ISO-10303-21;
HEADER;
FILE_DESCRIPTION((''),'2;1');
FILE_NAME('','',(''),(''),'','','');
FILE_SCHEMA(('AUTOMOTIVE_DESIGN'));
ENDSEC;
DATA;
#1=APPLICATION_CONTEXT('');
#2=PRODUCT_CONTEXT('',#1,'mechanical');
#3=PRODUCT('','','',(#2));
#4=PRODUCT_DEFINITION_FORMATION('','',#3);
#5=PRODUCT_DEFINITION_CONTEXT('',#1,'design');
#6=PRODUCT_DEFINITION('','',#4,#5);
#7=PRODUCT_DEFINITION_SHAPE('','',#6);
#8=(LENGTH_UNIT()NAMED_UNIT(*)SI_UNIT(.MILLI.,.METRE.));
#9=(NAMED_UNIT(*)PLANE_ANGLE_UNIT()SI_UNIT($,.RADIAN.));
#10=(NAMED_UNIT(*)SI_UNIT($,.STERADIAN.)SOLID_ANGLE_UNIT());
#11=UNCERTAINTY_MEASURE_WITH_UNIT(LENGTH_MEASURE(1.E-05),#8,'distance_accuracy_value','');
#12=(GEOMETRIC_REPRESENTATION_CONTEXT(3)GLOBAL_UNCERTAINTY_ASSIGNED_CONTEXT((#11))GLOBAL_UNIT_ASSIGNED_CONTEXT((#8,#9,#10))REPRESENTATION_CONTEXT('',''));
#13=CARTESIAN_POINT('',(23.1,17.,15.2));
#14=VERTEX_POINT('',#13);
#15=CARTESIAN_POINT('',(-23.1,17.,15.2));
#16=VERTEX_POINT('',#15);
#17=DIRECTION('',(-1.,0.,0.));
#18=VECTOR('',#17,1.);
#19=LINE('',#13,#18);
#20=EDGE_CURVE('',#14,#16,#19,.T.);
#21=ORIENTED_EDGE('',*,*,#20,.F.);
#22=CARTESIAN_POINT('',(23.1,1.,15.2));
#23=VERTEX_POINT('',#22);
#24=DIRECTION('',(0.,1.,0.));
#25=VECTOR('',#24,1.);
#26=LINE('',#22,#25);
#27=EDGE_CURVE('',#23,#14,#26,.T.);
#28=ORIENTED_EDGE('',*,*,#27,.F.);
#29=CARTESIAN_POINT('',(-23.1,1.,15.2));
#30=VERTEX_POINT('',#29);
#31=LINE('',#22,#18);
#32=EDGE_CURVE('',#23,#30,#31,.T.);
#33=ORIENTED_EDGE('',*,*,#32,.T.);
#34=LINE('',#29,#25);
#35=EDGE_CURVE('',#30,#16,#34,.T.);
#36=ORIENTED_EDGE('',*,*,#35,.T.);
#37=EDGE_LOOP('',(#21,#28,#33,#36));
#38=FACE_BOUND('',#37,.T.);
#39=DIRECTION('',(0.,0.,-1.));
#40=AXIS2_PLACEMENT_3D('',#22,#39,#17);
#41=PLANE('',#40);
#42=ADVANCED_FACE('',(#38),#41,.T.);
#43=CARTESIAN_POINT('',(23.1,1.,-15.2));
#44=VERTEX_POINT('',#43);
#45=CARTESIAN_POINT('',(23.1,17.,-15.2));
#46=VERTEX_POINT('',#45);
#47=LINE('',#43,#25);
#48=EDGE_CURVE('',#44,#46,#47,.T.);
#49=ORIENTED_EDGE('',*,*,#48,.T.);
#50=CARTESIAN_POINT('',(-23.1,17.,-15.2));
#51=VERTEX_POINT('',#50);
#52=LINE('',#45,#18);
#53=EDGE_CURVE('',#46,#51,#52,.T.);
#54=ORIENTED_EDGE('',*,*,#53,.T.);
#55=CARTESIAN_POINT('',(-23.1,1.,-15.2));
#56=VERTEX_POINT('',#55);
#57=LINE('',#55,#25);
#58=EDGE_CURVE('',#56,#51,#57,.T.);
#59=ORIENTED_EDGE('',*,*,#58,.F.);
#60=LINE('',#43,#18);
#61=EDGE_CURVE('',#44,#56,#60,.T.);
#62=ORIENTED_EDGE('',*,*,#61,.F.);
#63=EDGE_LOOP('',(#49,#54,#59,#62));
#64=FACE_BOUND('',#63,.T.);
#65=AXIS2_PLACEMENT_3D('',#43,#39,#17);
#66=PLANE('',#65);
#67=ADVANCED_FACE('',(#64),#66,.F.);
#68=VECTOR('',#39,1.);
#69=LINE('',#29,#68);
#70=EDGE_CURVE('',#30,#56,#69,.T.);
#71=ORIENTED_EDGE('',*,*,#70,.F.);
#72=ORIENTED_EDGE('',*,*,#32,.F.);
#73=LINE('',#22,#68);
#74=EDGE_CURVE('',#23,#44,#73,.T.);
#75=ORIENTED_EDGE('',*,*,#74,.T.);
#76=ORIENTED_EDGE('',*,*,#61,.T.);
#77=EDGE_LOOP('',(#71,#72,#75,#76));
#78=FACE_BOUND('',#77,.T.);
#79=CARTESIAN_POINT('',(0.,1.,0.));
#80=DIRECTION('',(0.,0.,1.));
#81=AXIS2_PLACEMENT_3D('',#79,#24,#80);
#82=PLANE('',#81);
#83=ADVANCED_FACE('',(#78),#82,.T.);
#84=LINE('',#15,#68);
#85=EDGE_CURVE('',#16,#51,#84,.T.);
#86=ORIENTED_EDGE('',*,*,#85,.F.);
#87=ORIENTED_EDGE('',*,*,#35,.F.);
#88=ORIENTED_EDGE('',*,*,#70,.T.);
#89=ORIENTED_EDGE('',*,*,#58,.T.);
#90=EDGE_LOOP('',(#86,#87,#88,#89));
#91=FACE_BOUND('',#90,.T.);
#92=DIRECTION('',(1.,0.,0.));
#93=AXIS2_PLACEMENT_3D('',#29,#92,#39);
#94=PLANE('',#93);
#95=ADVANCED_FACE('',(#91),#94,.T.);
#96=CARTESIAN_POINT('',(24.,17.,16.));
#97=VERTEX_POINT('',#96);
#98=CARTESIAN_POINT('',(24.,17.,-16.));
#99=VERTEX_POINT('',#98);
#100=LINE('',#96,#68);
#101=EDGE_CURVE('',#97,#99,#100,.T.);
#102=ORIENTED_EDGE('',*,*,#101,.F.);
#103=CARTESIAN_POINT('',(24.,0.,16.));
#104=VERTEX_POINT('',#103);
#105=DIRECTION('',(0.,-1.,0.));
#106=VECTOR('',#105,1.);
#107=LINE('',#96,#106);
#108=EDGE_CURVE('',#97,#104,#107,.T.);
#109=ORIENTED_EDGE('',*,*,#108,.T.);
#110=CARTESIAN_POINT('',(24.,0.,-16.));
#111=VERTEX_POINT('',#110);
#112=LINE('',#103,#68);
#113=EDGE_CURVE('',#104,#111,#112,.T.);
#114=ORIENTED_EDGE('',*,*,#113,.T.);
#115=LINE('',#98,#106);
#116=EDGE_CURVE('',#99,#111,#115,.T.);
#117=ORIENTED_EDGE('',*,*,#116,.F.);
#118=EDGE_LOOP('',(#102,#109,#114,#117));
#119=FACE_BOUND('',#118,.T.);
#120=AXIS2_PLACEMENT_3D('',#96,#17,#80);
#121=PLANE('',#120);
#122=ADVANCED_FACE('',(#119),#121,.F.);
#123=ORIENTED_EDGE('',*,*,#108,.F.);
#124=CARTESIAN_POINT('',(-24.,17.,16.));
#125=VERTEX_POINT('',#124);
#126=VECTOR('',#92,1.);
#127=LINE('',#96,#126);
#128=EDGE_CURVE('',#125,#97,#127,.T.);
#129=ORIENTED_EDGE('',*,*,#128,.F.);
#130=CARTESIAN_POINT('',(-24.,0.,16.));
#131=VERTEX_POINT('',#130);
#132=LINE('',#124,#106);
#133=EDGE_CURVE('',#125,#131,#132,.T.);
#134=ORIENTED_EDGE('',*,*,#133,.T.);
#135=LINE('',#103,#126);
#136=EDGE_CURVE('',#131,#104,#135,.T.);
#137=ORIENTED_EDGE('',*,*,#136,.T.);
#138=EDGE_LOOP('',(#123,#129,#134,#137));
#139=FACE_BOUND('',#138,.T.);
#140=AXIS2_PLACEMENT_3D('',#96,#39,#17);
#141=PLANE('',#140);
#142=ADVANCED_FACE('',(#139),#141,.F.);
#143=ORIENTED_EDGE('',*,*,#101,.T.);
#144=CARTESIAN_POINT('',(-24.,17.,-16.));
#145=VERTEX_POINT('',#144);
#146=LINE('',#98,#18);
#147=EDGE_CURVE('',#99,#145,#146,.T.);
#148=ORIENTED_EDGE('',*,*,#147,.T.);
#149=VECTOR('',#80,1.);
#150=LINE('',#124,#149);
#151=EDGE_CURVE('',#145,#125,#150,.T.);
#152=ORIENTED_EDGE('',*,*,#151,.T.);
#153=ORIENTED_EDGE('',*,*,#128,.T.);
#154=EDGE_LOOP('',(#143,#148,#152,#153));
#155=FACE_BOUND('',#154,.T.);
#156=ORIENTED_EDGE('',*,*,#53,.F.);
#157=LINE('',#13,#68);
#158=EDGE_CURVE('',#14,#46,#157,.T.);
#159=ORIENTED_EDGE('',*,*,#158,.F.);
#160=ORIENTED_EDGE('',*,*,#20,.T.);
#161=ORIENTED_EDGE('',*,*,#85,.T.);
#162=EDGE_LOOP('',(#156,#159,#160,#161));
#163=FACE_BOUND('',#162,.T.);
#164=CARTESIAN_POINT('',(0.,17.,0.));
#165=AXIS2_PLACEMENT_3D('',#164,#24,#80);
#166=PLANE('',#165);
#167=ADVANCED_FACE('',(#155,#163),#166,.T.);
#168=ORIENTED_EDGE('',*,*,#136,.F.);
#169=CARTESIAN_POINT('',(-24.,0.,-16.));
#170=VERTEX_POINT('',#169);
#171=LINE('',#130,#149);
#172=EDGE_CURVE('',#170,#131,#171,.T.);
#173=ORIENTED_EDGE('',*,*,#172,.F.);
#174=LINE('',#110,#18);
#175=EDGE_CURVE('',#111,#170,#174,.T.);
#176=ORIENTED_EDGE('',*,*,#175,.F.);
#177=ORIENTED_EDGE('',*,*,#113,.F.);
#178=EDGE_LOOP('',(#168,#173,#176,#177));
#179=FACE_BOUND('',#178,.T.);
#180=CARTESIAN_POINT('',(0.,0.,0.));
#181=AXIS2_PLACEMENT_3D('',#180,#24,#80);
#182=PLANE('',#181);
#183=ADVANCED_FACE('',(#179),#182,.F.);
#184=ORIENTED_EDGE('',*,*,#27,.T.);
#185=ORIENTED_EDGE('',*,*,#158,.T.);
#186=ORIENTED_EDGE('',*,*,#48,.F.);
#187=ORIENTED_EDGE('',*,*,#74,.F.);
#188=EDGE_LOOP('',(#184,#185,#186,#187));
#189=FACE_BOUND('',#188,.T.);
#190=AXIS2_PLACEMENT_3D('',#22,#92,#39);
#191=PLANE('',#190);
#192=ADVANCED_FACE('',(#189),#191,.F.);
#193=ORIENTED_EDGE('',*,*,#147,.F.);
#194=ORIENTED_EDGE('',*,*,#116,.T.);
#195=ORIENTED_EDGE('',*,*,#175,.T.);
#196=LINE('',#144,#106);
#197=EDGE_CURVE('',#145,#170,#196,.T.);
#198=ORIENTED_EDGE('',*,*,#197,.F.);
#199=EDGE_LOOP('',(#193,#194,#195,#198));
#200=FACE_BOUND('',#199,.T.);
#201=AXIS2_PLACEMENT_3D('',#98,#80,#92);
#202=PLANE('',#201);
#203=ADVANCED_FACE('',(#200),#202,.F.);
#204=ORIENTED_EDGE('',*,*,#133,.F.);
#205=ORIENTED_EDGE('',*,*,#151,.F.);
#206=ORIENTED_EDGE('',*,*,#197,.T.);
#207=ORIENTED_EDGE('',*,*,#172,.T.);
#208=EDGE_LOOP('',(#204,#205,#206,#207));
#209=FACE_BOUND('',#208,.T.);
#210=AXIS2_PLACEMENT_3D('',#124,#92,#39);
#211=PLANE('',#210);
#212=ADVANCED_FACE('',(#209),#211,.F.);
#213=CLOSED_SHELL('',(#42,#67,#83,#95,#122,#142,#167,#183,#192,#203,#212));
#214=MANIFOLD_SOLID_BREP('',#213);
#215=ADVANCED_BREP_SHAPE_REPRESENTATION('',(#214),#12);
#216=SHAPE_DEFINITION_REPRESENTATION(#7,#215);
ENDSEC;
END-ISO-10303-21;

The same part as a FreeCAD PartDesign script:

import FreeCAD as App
import Part
import Sketcher
from FreeCAD import Vector
Q = App.Units.Quantity

doc = App.newDocument("Part")
params = doc.addObject("Spreadsheet::Sheet", "Params")
for row, (alias, value) in enumerate([
    ("sketch1_width", "48 mm"),
    ("sketch1_height", "32 mm"),
    ("pad1_length", "17 mm"),
    ("sketch2_width", "46.2 mm"),
    ("sketch2_height", "30.4 mm"),
    ("pocket1_length", "16 mm"),
], start=1):
    params.set(f"A{row}", alias)
    params.set(f"B{row}", "=" + value)
    params.setAlias(f"B{row}", alias)

body = doc.addObject("PartDesign::Body", "Body")

sketch1 = body.newObject("Sketcher::SketchObject", "Sketch")
sketch1.AttachmentSupport = (doc.getObject("XZ_Plane"), [""])
sketch1.MapMode = "FlatFace"
sketch1.addGeometry(Part.LineSegment(Vector(-24, -16, 0), Vector(-24, 16, 0)), False)
sketch1.addGeometry(Part.LineSegment(Vector(-24, 16, 0), Vector(24, 16, 0)), False)
sketch1.addGeometry(Part.LineSegment(Vector(24, 16, 0), Vector(24, -16, 0)), False)
sketch1.addGeometry(Part.LineSegment(Vector(24, -16, 0), Vector(-24, -16, 0)), False)
sketch1.addConstraint(Sketcher.Constraint("Coincident", 0, 2, 1, 1))
sketch1.addConstraint(Sketcher.Constraint("Coincident", 1, 2, 2, 1))
sketch1.addConstraint(Sketcher.Constraint("Coincident", 2, 2, 3, 1))
sketch1.addConstraint(Sketcher.Constraint("Coincident", 3, 2, 0, 1))
sketch1.addConstraint(Sketcher.Constraint("Vertical", 0))
sketch1.addConstraint(Sketcher.Constraint("Horizontal", 1))
sketch1.addConstraint(Sketcher.Constraint("Vertical", 2))
sketch1.addConstraint(Sketcher.Constraint("Horizontal", 3))
sketch1.addConstraint(Sketcher.Constraint("Symmetric", 0, 2, 2, 2, -1, 1))
sketch1.addConstraint(Sketcher.Constraint("DistanceX", 1, 1, 1, 2, Q("48 mm")))
sketch1.addConstraint(Sketcher.Constraint("DistanceY", 0, 1, 0, 2, Q("32 mm")))
sketch1.setExpression("Constraints[9]", "Params.sketch1_width")
sketch1.setExpression("Constraints[10]", "Params.sketch1_height")
pad1 = body.newObject("PartDesign::Pad", "Pad")
pad1.Profile = sketch1
pad1.setExpression("Length", "Params.pad1_length")
pad1.Reversed = True

sketch2 = body.newObject("Sketcher::SketchObject", "Sketch001")
sketch2.AttachmentSupport = (doc.getObject("XZ_Plane"), [""])
sketch2.MapMode = "FlatFace"
sketch2.AttachmentOffset = App.Placement(Vector(0, 0, -17), App.Rotation())
sketch2.addGeometry(Part.LineSegment(Vector(-23, -15, 0), Vector(-23, 15, 0)), False)
sketch2.addGeometry(Part.LineSegment(Vector(-23, 15, 0), Vector(23, 15, 0)), False)
sketch2.addGeometry(Part.LineSegment(Vector(23, 15, 0), Vector(23, -15, 0)), False)
sketch2.addGeometry(Part.LineSegment(Vector(23, -15, 0), Vector(-23, -15, 0)), False)
sketch2.addConstraint(Sketcher.Constraint("Coincident", 0, 2, 1, 1))
sketch2.addConstraint(Sketcher.Constraint("Coincident", 1, 2, 2, 1))
sketch2.addConstraint(Sketcher.Constraint("Coincident", 2, 2, 3, 1))
sketch2.addConstraint(Sketcher.Constraint("Coincident", 3, 2, 0, 1))
sketch2.addConstraint(Sketcher.Constraint("Vertical", 0))
sketch2.addConstraint(Sketcher.Constraint("Horizontal", 1))
sketch2.addConstraint(Sketcher.Constraint("Vertical", 2))
sketch2.addConstraint(Sketcher.Constraint("Horizontal", 3))
sketch2.addConstraint(Sketcher.Constraint("Symmetric", 0, 2, 2, 2, -1, 1))
sketch2.addConstraint(Sketcher.Constraint("DistanceX", 1, 1, 1, 2, Q("46.2 mm")))
sketch2.addConstraint(Sketcher.Constraint("DistanceY", 0, 1, 0, 2, Q("30.4 mm")))
sketch2.setExpression("Constraints[9]", "Params.sketch2_width")
sketch2.setExpression("Constraints[10]", "Params.sketch2_height")
pocket1 = body.newObject("PartDesign::Pocket", "Pocket")
pocket1.Profile = sketch2
pocket1.setExpression("Length", "Params.pocket1_length")
pocket1.Reversed = True

doc.recompute()
